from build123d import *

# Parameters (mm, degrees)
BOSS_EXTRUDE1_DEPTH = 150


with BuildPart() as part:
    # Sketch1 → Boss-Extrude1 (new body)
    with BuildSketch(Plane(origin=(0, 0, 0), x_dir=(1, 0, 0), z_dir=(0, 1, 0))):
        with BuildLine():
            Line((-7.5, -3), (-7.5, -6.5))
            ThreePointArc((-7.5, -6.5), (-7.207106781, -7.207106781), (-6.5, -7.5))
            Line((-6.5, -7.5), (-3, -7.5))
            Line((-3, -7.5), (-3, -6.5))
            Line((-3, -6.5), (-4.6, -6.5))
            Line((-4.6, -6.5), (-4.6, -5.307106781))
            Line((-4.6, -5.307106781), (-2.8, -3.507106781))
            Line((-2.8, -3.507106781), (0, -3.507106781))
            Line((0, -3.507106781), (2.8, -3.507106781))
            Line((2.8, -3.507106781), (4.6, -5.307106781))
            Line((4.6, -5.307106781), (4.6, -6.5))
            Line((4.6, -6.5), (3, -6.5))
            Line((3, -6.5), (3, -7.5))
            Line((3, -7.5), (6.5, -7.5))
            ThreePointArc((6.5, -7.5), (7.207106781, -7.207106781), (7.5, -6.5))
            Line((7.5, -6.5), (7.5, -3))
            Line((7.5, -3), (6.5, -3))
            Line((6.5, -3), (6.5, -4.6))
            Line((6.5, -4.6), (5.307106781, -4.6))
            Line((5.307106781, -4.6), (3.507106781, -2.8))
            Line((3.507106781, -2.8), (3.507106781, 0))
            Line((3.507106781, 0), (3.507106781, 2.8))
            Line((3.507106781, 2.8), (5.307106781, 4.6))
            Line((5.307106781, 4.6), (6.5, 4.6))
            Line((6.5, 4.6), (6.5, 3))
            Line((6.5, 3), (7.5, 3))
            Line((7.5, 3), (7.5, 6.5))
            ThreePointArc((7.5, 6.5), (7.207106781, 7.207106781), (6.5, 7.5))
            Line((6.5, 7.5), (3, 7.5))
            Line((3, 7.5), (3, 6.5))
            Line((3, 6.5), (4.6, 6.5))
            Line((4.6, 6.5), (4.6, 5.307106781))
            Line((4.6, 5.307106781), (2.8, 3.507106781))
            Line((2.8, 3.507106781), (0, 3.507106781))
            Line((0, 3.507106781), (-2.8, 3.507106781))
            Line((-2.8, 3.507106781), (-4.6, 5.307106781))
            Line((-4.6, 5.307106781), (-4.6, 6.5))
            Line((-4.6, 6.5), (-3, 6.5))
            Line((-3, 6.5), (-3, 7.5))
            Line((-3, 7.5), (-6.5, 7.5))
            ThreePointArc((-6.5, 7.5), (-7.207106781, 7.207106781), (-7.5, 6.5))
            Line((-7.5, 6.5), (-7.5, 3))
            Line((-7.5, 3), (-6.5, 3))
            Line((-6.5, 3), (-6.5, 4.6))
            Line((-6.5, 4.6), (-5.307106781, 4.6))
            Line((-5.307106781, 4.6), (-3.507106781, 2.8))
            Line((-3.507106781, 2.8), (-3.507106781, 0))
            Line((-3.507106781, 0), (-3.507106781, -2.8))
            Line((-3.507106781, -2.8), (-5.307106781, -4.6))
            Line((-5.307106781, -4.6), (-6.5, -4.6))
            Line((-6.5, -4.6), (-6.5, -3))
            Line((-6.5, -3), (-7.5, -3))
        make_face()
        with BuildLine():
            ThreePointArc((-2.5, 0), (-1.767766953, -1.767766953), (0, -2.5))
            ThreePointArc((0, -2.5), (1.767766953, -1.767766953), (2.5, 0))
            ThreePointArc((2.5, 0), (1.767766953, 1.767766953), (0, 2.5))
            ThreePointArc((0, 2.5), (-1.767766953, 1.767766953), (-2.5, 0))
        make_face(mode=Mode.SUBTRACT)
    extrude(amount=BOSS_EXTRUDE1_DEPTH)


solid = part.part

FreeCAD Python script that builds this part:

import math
import FreeCAD as App
import Part
import Sketcher

V = App.Vector
Q = App.Units.Quantity

doc = App.newDocument("Part")
body = doc.addObject("PartDesign::Body", "Body")

# Sketch on XZ plane
sketch1 = body.newObject("Sketcher::SketchObject", "Sketch")
sketch1.AttachmentSupport = (doc.getObject("XZ_Plane"), [""])
sketch1.MapMode = "FlatFace"
sketch1.addGeometry(Part.LineSegment(V(-7.5, 3, 0), V(-7.5, 6.5, 0)), False)
sketch1.addGeometry(Part.ArcOfCircle(Part.Circle(V(-6.5, 6.5, 0), V(0, 0, 1), 1), math.radians(90), math.radians(180)), False)
sketch1.addGeometry(Part.LineSegment(V(-6.5, 7.5, 0), V(-3, 7.5, 0)), False)
sketch1.addGeometry(Part.LineSegment(V(-3, 7.5, 0), V(-3, 6.5, 0)), False)
sketch1.addGeometry(Part.LineSegment(V(-3, 6.5, 0), V(-4.6, 6.5, 0)), False)
sketch1.addGeometry(Part.LineSegment(V(-4.6, 6.5, 0), V(-4.6, 5.307107, 0)), False)
sketch1.addGeometry(Part.LineSegment(V(-4.6, 5.307107, 0), V(-2.8, 3.507107, 0)), False)
sketch1.addGeometry(Part.LineSegment(V(-2.8, 3.507107, 0), V(2.8, 3.507107, 0)), False)
sketch1.addGeometry(Part.LineSegment(V(2.8, 3.507107, 0), V(4.6, 5.307107, 0)), False)
sketch1.addGeometry(Part.LineSegment(V(4.6, 5.307107, 0), V(4.6, 6.5, 0)), False)
sketch1.addGeometry(Part.LineSegment(V(4.6, 6.5, 0), V(3, 6.5, 0)), False)
sketch1.addGeometry(Part.LineSegment(V(3, 6.5, 0), V(3, 7.5, 0)), False)
sketch1.addGeometry(Part.LineSegment(V(3, 7.5, 0), V(6.5, 7.5, 0)), False)
sketch1.addGeometry(Part.ArcOfCircle(Part.Circle(V(6.5, 6.5, 0), V(0, 0, 1), 1), math.radians(0), math.radians(90)), False)
sketch1.addGeometry(Part.LineSegment(V(7.5, 6.5, 0), V(7.5, 3, 0)), False)
sketch1.addGeometry(Part.LineSegment(V(7.5, 3, 0), V(6.5, 3, 0)), False)
sketch1.addGeometry(Part.LineSegment(V(6.5, 3, 0), V(6.5, 4.6, 0)), False)
sketch1.addGeometry(Part.LineSegment(V(6.5, 4.6, 0), V(5.307107, 4.6, 0)), False)
sketch1.addGeometry(Part.LineSegment(V(5.307107, 4.6, 0), V(3.507107, 2.8, 0)), False)
sketch1.addGeometry(Part.LineSegment(V(3.507107, 2.8, 0), V(3.507107, -2.8, 0)), False)
sketch1.addGeometry(Part.LineSegment(V(3.507107, -2.8, 0), V(5.307107, -4.6, 0)), False)
sketch1.addGeometry(Part.LineSegment(V(5.307107, -4.6, 0), V(6.5, -4.6, 0)), False)
sketch1.addGeometry(Part.LineSegment(V(6.5, -4.6, 0), V(6.5, -3, 0)), False)
sketch1.addGeometry(Part.LineSegment(V(6.5, -3, 0), V(7.5, -3, 0)), False)
sketch1.addGeometry(Part.LineSegment(V(7.5, -3, 0), V(7.5, -6.5, 0)), False)
sketch1.addGeometry(Part.ArcOfCircle(Part.Circle(V(6.5, -6.5, 0), V(0, 0, 1), 1), math.radians(-90), math.radians(0)), False)
sketch1.addGeometry(Part.LineSegment(V(6.5, -7.5, 0), V(3, -7.5, 0)), False)
sketch1.addGeometry(Part.LineSegment(V(3, -7.5, 0), V(3, -6.5, 0)), False)
sketch1.addGeometry(Part.LineSegment(V(3, -6.5, 0), V(4.6, -6.5, 0)), False)
sketch1.addGeometry(Part.LineSegment(V(4.6, -6.5, 0), V(4.6, -5.307107, 0)), False)
sketch1.addGeometry(Part.LineSegment(V(4.6, -5.307107, 0), V(2.8, -3.507107, 0)), False)
sketch1.addGeometry(Part.LineSegment(V(2.8, -3.507107, 0), V(-2.8, -3.507107, 0)), False)
sketch1.addGeometry(Part.LineSegment(V(-2.8, -3.507107, 0), V(-4.6, -5.307107, 0)), False)
sketch1.addGeometry(Part.LineSegment(V(-4.6, -5.307107, 0), V(-4.6, -6.5, 0)), False)
sketch1.addGeometry(Part.LineSegment(V(-4.6, -6.5, 0), V(-3, -6.5, 0)), False)
sketch1.addGeometry(Part.LineSegment(V(-3, -6.5, 0), V(-3, -7.5, 0)), False)
sketch1.addGeometry(Part.LineSegment(V(-3, -7.5, 0), V(-6.5, -7.5, 0)), False)
sketch1.addGeometry(Part.ArcOfCircle(Part.Circle(V(-6.5, -6.5, 0), V(0, 0, 1), 1), math.radians(-180), math.radians(-90)), False)
sketch1.addGeometry(Part.LineSegment(V(-7.5, -6.5, 0), V(-7.5, -3, 0)), False)
sketch1.addGeometry(Part.LineSegment(V(-7.5, -3, 0), V(-6.5, -3, 0)), False)
sketch1.addGeometry(Part.LineSegment(V(-6.5, -3, 0), V(-6.5, -4.6, 0)), False)
sketch1.addGeometry(Part.LineSegment(V(-6.5, -4.6, 0), V(-5.307107, -4.6, 0)), False)
sketch1.addGeometry(Part.LineSegment(V(-5.307107, -4.6, 0), V(-3.507107, -2.8, 0)), False)
sketch1.addGeometry(Part.LineSegment(V(-3.507107, -2.8, 0), V(-3.507107, 2.8, 0)), False)
sketch1.addGeometry(Part.LineSegment(V(-3.507107, 2.8, 0), V(-5.307107, 4.6, 0)), False)
sketch1.addGeometry(Part.LineSegment(V(-5.307107, 4.6, 0), V(-6.5, 4.6, 0)), False)
sketch1.addGeometry(Part.LineSegment(V(-6.5, 4.6, 0), V(-6.5, 3, 0)), False)
sketch1.addGeometry(Part.LineSegment(V(-6.5, 3, 0), V(-7.5, 3, 0)), False)
sketch1.addGeometry(Part.ArcOfCircle(Part.Circle(V(0, 0, 0), V(0, 0, 1), 2.5), math.radians(90), math.radians(180)), False)
sketch1.addGeometry(Part.ArcOfCircle(Part.Circle(V(0, 0, 0), V(0, 0, 1), 2.5), math.radians(180), math.radians(270)), False)
sketch1.addGeometry(Part.ArcOfCircle(Part.Circle(V(0, 0, 0), V(0, 0, 1), 2.5), math.radians(-90), math.radians(0)), False)
sketch1.addGeometry(Part.ArcOfCircle(Part.Circle(V(0, 0, 0), V(0, 0, 1), 2.5), math.radians(0), math.radians(90)), False)
sketch1.addConstraint(Sketcher.Constraint("Tangent", 0, 2, 1, 2))
sketch1.addConstraint(Sketcher.Constraint("Tangent", 1, 1, 2, 1))
sketch1.addConstraint(Sketcher.Constraint("Coincident", 2, 2, 3, 1))
sketch1.addConstraint(Sketcher.Constraint("Coincident", 3, 2, 4, 1))
sketch1.addConstraint(Sketcher.Constraint("Coincident", 4, 2, 5, 1))
sketch1.addConstraint(Sketcher.Constraint("Coincident", 5, 2, 6, 1))
sketch1.addConstraint(Sketcher.Constraint("Coincident", 6, 2, 7, 1))
sketch1.addConstraint(Sketcher.Constraint("Coincident", 7, 2, 8, 1))
sketch1.addConstraint(Sketcher.Constraint("Coincident", 8, 2, 9, 1))
sketch1.addConstraint(Sketcher.Constraint("Coincident", 9, 2, 10, 1))
sketch1.addConstraint(Sketcher.Constraint("Coincident", 10, 2, 11, 1))
sketch1.addConstraint(Sketcher.Constraint("Coincident", 11, 2, 12, 1))
sketch1.addConstraint(Sketcher.Constraint("Tangent", 12, 2, 13, 2))
sketch1.addConstraint(Sketcher.Constraint("Tangent", 13, 1, 14, 1))
sketch1.addConstraint(Sketcher.Constraint("Coincident", 14, 2, 15, 1))
sketch1.addConstraint(Sketcher.Constraint("Coincident", 15, 2, 16, 1))
sketch1.addConstraint(Sketcher.Constraint("Coincident", 16, 2, 17, 1))
sketch1.addConstraint(Sketcher.Constraint("Coincident", 17, 2, 18, 1))
sketch1.addConstraint(Sketcher.Constraint("Coincident", 18, 2, 19, 1))
sketch1.addConstraint(Sketcher.Constraint("Coincident", 19, 2, 20, 1))
sketch1.addConstraint(Sketcher.Constraint("Coincident", 20, 2, 21, 1))
sketch1.addConstraint(Sketcher.Constraint("Coincident", 21, 2, 22, 1))
sketch1.addConstraint(Sketcher.Constraint("Coincident", 22, 2, 23, 1))
sketch1.addConstraint(Sketcher.Constraint("Coincident", 23, 2, 24, 1))
sketch1.addConstraint(Sketcher.Constraint("Tangent", 24, 2, 25, 2))
sketch1.addConstraint(Sketcher.Constraint("Tangent", 25, 1, 26, 1))
sketch1.addConstraint(Sketcher.Constraint("Coincident", 26, 2, 27, 1))
sketch1.addConstraint(Sketcher.Constraint("Coincident", 27, 2, 28, 1))
sketch1.addConstraint(Sketcher.Constraint("Coincident", 28, 2, 29, 1))
sketch1.addConstraint(Sketcher.Constraint("Coincident", 29, 2, 30, 1))
sketch1.addConstraint(Sketcher.Constraint("Coincident", 30, 2, 31, 1))
sketch1.addConstraint(Sketcher.Constraint("Coincident", 31, 2, 32, 1))
sketch1.addConstraint(Sketcher.Constraint("Coincident", 32, 2, 33, 1))
sketch1.addConstraint(Sketcher.Constraint("Coincident", 33, 2, 34, 1))
sketch1.addConstraint(Sketcher.Constraint("Coincident", 34, 2, 35, 1))
sketch1.addConstraint(Sketcher.Constraint("Coincident", 35, 2, 36, 1))
sketch1.addConstraint(Sketcher.Constraint("Tangent", 36, 2, 37, 2))
sketch1.addConstraint(Sketcher.Constraint("Tangent", 37, 1, 38, 1))
sketch1.addConstraint(Sketcher.Constraint("Coincident", 38, 2, 39, 1))
sketch1.addConstraint(Sketcher.Constraint("Coincident", 39, 2, 40, 1))
sketch1.addConstraint(Sketcher.Constraint("Coincident", 40, 2, 41, 1))
sketch1.addConstraint(Sketcher.Constraint("Coincident", 41, 2, 42, 1))
sketch1.addConstraint(Sketcher.Constraint("Coincident", 42, 2, 43, 1))
sketch1.addConstraint(Sketcher.Constraint("Coincident", 43, 2, 44, 1))
sketch1.addConstraint(Sketcher.Constraint("Coincident", 44, 2, 45, 1))
sketch1.addConstraint(Sketcher.Constraint("Coincident", 45, 2, 46, 1))
sketch1.addConstraint(Sketcher.Constraint("Coincident", 46, 2, 47, 1))
sketch1.addConstraint(Sketcher.Constraint("Coincident", 47, 2, 0, 1))
sketch1.addConstraint(Sketcher.Constraint("Tangent", 48, 2, 49, 1))
sketch1.addConstraint(Sketcher.Constraint("Tangent", 49, 2, 50, 1))
sketch1.addConstraint(Sketcher.Constraint("Tangent", 50, 2, 51, 1))
sketch1.addConstraint(Sketcher.Constraint("Tangent", 51, 2, 48, 1))
sketch1.addConstraint(Sketcher.Constraint("Vertical", 0))
sketch1.addConstraint(Sketcher.Constraint("Horizontal", 2))
sketch1.addConstraint(Sketcher.Constraint("Vertical", 3))
sketch1.addConstraint(Sketcher.Constraint("Horizontal", 4))
sketch1.addConstraint(Sketcher.Constraint("Vertical", 5))
sketch1.addConstraint(Sketcher.Constraint("Horizontal", 7))
sketch1.addConstraint(Sketcher.Constraint("Vertical", 9))
sketch1.addConstraint(Sketcher.Constraint("Horizontal", 10))
sketch1.addConstraint(Sketcher.Constraint("Vertical", 11))
sketch1.addConstraint(Sketcher.Constraint("Horizontal", 12))
sketch1.addConstraint(Sketcher.Constraint("Vertical", 14))
sketch1.addConstraint(Sketcher.Constraint("Horizontal", 15))
sketch1.addConstraint(Sketcher.Constraint("Vertical", 16))
sketch1.addConstraint(Sketcher.Constraint("Horizontal", 17))
sketch1.addConstraint(Sketcher.Constraint("Vertical", 19))
sketch1.addConstraint(Sketcher.Constraint("Horizontal", 21))
sketch1.addConstraint(Sketcher.Constraint("Vertical", 22))
sketch1.addConstraint(Sketcher.Constraint("Horizontal", 23))
sketch1.addConstraint(Sketcher.Constraint("Vertical", 24))
sketch1.addConstraint(Sketcher.Constraint("Horizontal", 26))
sketch1.addConstraint(Sketcher.Constraint("Vertical", 27))
sketch1.addConstraint(Sketcher.Constraint("Horizontal", 28))
sketch1.addConstraint(Sketcher.Constraint("Vertical", 29))
sketch1.addConstraint(Sketcher.Constraint("Horizontal", 31))
sketch1.addConstraint(Sketcher.Constraint("Vertical", 33))
sketch1.addConstraint(Sketcher.Constraint("Horizontal", 34))
sketch1.addConstraint(Sketcher.Constraint("Vertical", 35))
sketch1.addConstraint(Sketcher.Constraint("Horizontal", 36))
sketch1.addConstraint(Sketcher.Constraint("Vertical", 38))
sketch1.addConstraint(Sketcher.Constraint("Horizontal", 39))
sketch1.addConstraint(Sketcher.Constraint("Vertical", 40))
sketch1.addConstraint(Sketcher.Constraint("Horizontal", 41))
sketch1.addConstraint(Sketcher.Constraint("Vertical", 43))
sketch1.addConstraint(Sketcher.Constraint("Horizontal", 45))
sketch1.addConstraint(Sketcher.Constraint("Vertical", 46))
sketch1.addConstraint(Sketcher.Constraint("Horizontal", 47))
sketch1.addConstraint(Sketcher.Constraint("Coincident", 48, 3, -1, 1))
sketch1.addConstraint(Sketcher.Constraint("Equal", 1, 13))
sketch1.addConstraint(Sketcher.Constraint("Equal", 13, 25))
sketch1.addConstraint(Sketcher.Constraint("Equal", 25, 37))
sketch1.addConstraint(Sketcher.Constraint("Equal", 48, 49))
sketch1.addConstraint(Sketcher.Constraint("Symmetric", 1, 3, 25, 3, -1, 1))
sketch1.addConstraint(Sketcher.Constraint("Symmetric", 13, 3, 37, 3, -1, 1))
sketch1.addConstraint(Sketcher.Constraint("Symmetric", 3, 2, 27, 2, -1, 1))
sketch1.addConstraint(Sketcher.Constraint("Symmetric", 5, 2, 29, 2, -1, 1))
sketch1.addConstraint(Sketcher.Constraint("Symmetric", 6, 2, 30, 2, -1, 1))
sketch1.addConstraint(Sketcher.Constraint("Symmetric", 8, 2, 32, 2, -1, 1))
sketch1.addConstraint(Sketcher.Constraint("Symmetric", 10, 2, 34, 2, -1, 1))
sketch1.addConstraint(Sketcher.Constraint("Symmetric", 15, 2, 39, 2, -1, 1))
sketch1.addConstraint(Sketcher.Constraint("Symmetric", 17, 2, 41, 2, -1, 1))
sketch1.addConstraint(Sketcher.Constraint("Symmetric", 18, 2, 42, 2, -1, 1))
sketch1.addConstraint(Sketcher.Constraint("Symmetric", 20, 2, 44, 2, -1, 1))
sketch1.addConstraint(Sketcher.Constraint("Symmetric", 22, 2, 46, 2, -1, 1))
sketch1.addConstraint(Sketcher.Constraint("Symmetric", 1, 3, 13, 3, -2))
sketch1.addConstraint(Sketcher.Constraint("Symmetric", 5, 2, 8, 2, -2))
sketch1.addConstraint(Sketcher.Constraint("Symmetric", 3, 2, 10, 2, -2))
sketch1.addConstraint(Sketcher.Constraint("Symmetric", 22, 2, 39, 2, -2))
sketch1.addConstraint(Sketcher.Constraint("Symmetric", 20, 2, 41, 2, -2))
sketch1.addConstraint(Sketcher.Constraint("PointOnObject", 48, 2, -1))
sketch1.addConstraint(Sketcher.Constraint("PointOnObject", 49, 2, -2))
sketch1.addConstraint(Sketcher.Constraint("PointOnObject", 50, 2, -1))
sketch1.addConstraint(Sketcher.Constraint("PointOnObject", 51, 2, -2))
sketch1.addConstraint(Sketcher.Constraint("Perpendicular", 6, 8))
sketch1.addConstraint(Sketcher.Constraint("Parallel", 8, 18))
sketch1.addConstraint(Sketcher.Constraint("Perpendicular", 18, 20))
sketch1.addConstraint(Sketcher.Constraint("Perpendicular", 30, 32))
sketch1.addConstraint(Sketcher.Constraint("Perpendicular", 42, 44))
sketch1.addConstraint(Sketcher.Constraint("Horizontal", 0, 2, 3, 2))
sketch1.addConstraint(Sketcher.Constraint("Horizontal", 19, 2, 42, 2))
sketch1.addConstraint(Sketcher.Constraint("Vertical", 12, 2, 15, 2))
sketch1.addConstraint(Sketcher.Constraint("Equal", 36, 0))
sketch1.addConstraint(Sketcher.Constraint("Equal", 45, 5))
sketch1.addConstraint(Sketcher.Constraint("Equal", 34, 16))
sketch1.addConstraint(Sketcher.Constraint("Equal", 31, 19))
sketch1.addConstraint(Sketcher.Constraint("Equal", 8, 18))
sketch1.addConstraint(Sketcher.Constraint("Radius", 1, Q("1 mm")))
sketch1.addConstraint(Sketcher.Constraint("Radius", 48, Q("2.5 mm")))
sketch1.addConstraint(Sketcher.Constraint("DistanceX", 2, 1, 2, 2, Q("3.5 mm")))
sketch1.addConstraint(Sketcher.Constraint("DistanceX", 4, 2, 4, 1, Q("1.6 mm")))
sketch1.addConstraint(Sketcher.Constraint("DistanceX", 7, 1, 7, 2, Q("5.6 mm")))
sketch1.addConstraint(Sketcher.Constraint("DistanceX", 2, 2, -1, 1, Q("3 mm")))
sketch1.addConstraint(Sketcher.Constraint("DistanceX", 17, 2, 17, 1, Q("1.192893 mm")))
pad1 = body.newObject("PartDesign::Pad", "Pad")
pad1.Profile = sketch1
pad1.Length = 150
pad1.Reversed = True

doc.recompute()
